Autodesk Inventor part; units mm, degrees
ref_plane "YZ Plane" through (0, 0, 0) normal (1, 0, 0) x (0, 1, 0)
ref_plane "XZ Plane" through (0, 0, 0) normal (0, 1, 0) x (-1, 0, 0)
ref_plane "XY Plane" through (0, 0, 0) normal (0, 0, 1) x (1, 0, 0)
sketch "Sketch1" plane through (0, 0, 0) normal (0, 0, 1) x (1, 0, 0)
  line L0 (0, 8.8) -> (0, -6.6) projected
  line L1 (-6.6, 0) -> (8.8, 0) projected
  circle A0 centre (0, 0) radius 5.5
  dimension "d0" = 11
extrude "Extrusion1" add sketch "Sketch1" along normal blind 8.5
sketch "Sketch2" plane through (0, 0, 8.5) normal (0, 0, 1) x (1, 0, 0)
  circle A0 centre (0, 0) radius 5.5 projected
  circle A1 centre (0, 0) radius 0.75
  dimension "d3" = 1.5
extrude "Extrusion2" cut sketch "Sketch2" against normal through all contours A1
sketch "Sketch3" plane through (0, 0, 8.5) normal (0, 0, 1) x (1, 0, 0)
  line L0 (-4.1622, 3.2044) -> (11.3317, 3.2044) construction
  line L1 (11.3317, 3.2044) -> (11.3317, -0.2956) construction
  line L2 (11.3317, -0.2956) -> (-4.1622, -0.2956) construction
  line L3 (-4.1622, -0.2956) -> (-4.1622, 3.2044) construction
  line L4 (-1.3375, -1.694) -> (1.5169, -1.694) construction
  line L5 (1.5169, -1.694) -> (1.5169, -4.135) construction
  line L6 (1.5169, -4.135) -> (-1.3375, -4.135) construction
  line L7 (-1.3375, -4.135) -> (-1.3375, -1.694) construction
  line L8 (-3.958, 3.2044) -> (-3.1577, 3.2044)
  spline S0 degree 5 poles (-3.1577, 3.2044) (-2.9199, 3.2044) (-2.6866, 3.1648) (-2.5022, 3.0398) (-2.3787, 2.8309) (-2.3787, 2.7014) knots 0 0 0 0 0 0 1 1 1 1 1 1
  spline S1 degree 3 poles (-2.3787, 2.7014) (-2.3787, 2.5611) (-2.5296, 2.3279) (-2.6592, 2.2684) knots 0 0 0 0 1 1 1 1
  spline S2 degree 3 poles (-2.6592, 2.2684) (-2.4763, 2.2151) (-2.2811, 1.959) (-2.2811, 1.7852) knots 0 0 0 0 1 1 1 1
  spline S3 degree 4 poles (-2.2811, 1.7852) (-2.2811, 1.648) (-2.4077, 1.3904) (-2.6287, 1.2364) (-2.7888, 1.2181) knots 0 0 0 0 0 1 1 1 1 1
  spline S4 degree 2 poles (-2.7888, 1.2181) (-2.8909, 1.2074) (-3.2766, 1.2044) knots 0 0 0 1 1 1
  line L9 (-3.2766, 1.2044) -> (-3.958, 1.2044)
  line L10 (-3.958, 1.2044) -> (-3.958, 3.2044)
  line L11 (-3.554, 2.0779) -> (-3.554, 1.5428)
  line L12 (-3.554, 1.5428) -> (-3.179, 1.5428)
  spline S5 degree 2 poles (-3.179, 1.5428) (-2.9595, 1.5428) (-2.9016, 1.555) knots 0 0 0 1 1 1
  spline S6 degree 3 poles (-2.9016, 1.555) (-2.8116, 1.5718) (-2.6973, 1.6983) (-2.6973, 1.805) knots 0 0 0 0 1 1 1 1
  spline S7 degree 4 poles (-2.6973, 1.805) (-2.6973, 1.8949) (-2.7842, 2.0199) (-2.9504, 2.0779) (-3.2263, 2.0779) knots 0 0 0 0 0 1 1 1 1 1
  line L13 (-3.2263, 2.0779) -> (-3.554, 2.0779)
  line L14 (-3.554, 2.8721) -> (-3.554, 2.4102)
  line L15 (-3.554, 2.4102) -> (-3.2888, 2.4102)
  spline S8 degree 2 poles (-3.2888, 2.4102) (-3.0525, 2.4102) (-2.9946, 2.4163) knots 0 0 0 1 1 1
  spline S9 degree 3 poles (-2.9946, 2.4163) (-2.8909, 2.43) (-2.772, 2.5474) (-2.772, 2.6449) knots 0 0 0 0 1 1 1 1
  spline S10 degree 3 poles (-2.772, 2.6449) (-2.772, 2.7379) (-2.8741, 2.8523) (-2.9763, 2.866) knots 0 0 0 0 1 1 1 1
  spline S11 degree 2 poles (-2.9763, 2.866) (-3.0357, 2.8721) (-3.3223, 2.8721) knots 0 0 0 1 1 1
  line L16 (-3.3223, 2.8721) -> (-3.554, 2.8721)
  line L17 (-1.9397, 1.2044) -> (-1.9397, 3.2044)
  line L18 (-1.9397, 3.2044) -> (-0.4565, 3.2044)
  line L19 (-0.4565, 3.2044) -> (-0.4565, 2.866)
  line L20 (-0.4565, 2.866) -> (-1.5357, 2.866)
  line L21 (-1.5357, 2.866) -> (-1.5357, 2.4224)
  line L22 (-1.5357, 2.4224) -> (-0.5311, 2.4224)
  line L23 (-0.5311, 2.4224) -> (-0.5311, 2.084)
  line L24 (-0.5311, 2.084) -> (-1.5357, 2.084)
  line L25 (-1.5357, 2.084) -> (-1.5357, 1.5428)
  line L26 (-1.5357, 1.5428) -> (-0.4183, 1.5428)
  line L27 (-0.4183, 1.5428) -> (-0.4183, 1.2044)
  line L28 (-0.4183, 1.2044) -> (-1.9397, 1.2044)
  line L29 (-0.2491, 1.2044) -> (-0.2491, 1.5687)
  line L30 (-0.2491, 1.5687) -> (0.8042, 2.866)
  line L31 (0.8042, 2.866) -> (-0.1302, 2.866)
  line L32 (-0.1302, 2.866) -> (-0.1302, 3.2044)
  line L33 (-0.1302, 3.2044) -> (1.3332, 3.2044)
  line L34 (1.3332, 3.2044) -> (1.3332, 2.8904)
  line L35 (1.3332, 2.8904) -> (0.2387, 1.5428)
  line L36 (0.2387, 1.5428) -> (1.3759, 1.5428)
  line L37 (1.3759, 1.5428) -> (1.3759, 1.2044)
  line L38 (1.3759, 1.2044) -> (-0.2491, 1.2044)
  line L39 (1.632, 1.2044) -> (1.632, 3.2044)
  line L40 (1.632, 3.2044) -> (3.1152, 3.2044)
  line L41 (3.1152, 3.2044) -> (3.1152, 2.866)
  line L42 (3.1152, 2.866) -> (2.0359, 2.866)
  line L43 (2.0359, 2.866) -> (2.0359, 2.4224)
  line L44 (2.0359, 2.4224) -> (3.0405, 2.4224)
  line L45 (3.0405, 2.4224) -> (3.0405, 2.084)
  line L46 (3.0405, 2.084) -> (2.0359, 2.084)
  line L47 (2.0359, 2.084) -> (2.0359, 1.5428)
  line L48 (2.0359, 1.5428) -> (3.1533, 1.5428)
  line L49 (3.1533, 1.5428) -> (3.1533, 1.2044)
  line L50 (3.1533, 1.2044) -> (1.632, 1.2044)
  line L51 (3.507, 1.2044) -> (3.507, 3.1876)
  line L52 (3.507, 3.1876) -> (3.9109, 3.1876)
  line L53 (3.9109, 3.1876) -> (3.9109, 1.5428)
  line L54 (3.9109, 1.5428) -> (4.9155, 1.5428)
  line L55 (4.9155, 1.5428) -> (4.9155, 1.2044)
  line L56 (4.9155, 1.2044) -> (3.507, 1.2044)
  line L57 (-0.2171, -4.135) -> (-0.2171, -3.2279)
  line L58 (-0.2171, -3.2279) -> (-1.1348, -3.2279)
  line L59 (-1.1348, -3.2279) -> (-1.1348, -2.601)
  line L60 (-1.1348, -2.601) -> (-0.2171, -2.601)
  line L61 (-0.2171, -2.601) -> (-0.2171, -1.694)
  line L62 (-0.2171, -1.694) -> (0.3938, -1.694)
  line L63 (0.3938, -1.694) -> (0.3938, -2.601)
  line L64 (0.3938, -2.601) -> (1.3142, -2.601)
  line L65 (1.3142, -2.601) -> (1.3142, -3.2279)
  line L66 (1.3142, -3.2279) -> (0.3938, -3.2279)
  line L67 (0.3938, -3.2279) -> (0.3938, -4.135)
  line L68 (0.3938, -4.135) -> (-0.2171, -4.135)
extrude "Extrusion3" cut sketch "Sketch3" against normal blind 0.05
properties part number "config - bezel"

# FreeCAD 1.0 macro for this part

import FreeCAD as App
import Part
import Sketcher

V = App.Vector

doc = App.newDocument("Part")
body = doc.addObject("PartDesign::Body", "Body")

# Sketch on XY plane
sketch1 = body.newObject("Sketcher::SketchObject", "Sketch")
sketch1.AttachmentSupport = (doc.getObject("XY_Plane"), [""])
sketch1.MapMode = "FlatFace"
sketch1.addGeometry(Part.Circle(V(0, 0, 0), V(0, 0, 1), 6), False)
sketch1.addConstraint([
    Sketcher.Constraint("Coincident", 0, 3, -1, 1),
    Sketcher.Constraint("Diameter", 0, 11.0),
])
pad1 = body.newObject("PartDesign::Pad", "Pad")
pad1.Profile = sketch1
pad1.Length = 8.5

# Sketch on XY plane
sketch2 = body.newObject("Sketcher::SketchObject", "Sketch001")
sketch2.AttachmentSupport = (doc.getObject("XY_Plane"), [""])
sketch2.MapMode = "FlatFace"
sketch2.AttachmentOffset = App.Placement(V(0, 0, 8.5), App.Rotation())
sketch2.addGeometry(Part.Circle(V(0, 0, 0), V(0, 0, 1), 0.8), False)
sketch2.addConstraint([
    Sketcher.Constraint("Coincident", 0, 3, -1, 1),
    Sketcher.Constraint("Diameter", 0, 1.5),
])
pocket1 = body.newObject("PartDesign::Pocket", "Pocket")
pocket1.Profile = sketch2
pocket1.Type = "ThroughAll"

# Sketch on XY plane
sketch3 = body.newObject("Sketcher::SketchObject", "Sketch002")
sketch3.AttachmentSupport = (doc.getObject("XY_Plane"), [""])
sketch3.MapMode = "FlatFace"
sketch3.AttachmentOffset = App.Placement(V(0, 0, 8.5), App.Rotation())
sketch3.addGeometry([
    Part.LineSegment(V(-3.1577, 3.2044, 0), V(-3.958, 3.2044, 0)),  # 0
    Part.LineSegment(V(-3.958, 3.2044, 0), V(-3.958, 1.2044, 0)),  # 1
    Part.LineSegment(V(-3.958, 1.2044, 0), V(-3.2766, 1.2044, 0)),  # 2
    Part.BSplineCurve([V(-2.7888, 1.2181, 0), V(-2.8909, 1.2074, 0), V(-3.2766, 1.2044, 0)], [3, 3], [0, 1], False, 2, [1, 1, 1], False),  # 3
    Part.BSplineCurve([V(-2.2811, 1.7852, 0), V(-2.2811, 1.648, 0), V(-2.4077, 1.3904, 0), V(-2.6287, 1.2364, 0), V(-2.7888, 1.2181, 0)], [5, 5], [0, 1], False, 4, [1, 1, 1, 1, 1], False),  # 4
    Part.BSplineCurve([V(-2.6592, 2.2684, 0), V(-2.4763, 2.2151, 0), V(-2.2811, 1.959, 0), V(-2.2811, 1.7852, 0)], [4, 4], [0, 1], False, 3, [1, 1, 1, 1], False),  # 5
    Part.BSplineCurve([V(-2.3787, 2.7014, 0), V(-2.3787, 2.5611, 0), V(-2.5296, 2.3279, 0), V(-2.6592, 2.2684, 0)], [4, 4], [0, 1], False, 3, [1, 1, 1, 1], False),  # 6
    Part.BSplineCurve([V(-3.1577, 3.2044, 0), V(-2.9199, 3.2044, 0), V(-2.6866, 3.1648, 0), V(-2.5022, 3.0398, 0), V(-2.3787, 2.8309, 0), V(-2.3787, 2.7014, 0)], [6, 6], [0, 1], False, 5, [1, 1, 1, 1, 1, 1], False),  # 7
    Part.LineSegment(V(-3.554, 1.5428, 0), V(-3.554, 2.0779, 0)),  # 8
    Part.LineSegment(V(-3.554, 2.0779, 0), V(-3.2263, 2.0779, 0)),  # 9
    Part.BSplineCurve([V(-2.6973, 1.805, 0), V(-2.6973, 1.8949, 0), V(-2.7842, 2.0199, 0), V(-2.9504, 2.0779, 0), V(-3.2263, 2.0779, 0)], [5, 5], [0, 1], False, 4, [1, 1, 1, 1, 1], False),  # 10
    Part.BSplineCurve([V(-2.9016, 1.555, 0), V(-2.8116, 1.5718, 0), V(-2.6973, 1.6983, 0), V(-2.6973, 1.805, 0)], [4, 4], [0, 1], False, 3, [1, 1, 1, 1], False),  # 11
    Part.BSplineCurve([V(-3.179, 1.5428, 0), V(-2.9595, 1.5428, 0), V(-2.9016, 1.555, 0)], [3, 3], [0, 1], False, 2, [1, 1, 1], False),  # 12
    Part.LineSegment(V(-3.179, 1.5428, 0), V(-3.554, 1.5428, 0)),  # 13
    Part.LineSegment(V(-3.554, 2.4102, 0), V(-3.554, 2.8721, 0)),  # 14
    Part.LineSegment(V(-3.554, 2.8721, 0), V(-3.3223, 2.8721, 0)),  # 15
    Part.BSplineCurve([V(-2.9763, 2.866, 0), V(-3.0357, 2.8721, 0), V(-3.3223, 2.8721, 0)], [3, 3], [0, 1], False, 2, [1, 1, 1], False),  # 16
    Part.BSplineCurve([V(-2.772, 2.6449, 0), V(-2.772, 2.7379, 0), V(-2.8741, 2.8523, 0), V(-2.9763, 2.866, 0)], [4, 4], [0, 1], False, 3, [1, 1, 1, 1], False),  # 17
    Part.BSplineCurve([V(-2.9946, 2.4163, 0), V(-2.8909, 2.43, 0), V(-2.772, 2.5474, 0), V(-2.772, 2.6449, 0)], [4, 4], [0, 1], False, 3, [1, 1, 1, 1], False),  # 18
    Part.BSplineCurve([V(-3.2888, 2.4102, 0), V(-3.0525, 2.4102, 0), V(-2.9946, 2.4163, 0)], [3, 3], [0, 1], False, 2, [1, 1, 1], False),  # 19
    Part.LineSegment(V(-3.2888, 2.4102, 0), V(-3.554, 2.4102, 0)),  # 20
    Part.LineSegment(V(-1.9397, 3.2044, 0), V(-1.9397, 1.2044, 0)),  # 21
    Part.LineSegment(V(-1.9397, 1.2044, 0), V(-0.4183, 1.2044, 0)),  # 22
    Part.LineSegment(V(-0.4183, 1.2044, 0), V(-0.4183, 1.5428, 0)),  # 23
    Part.LineSegment(V(-0.4183, 1.5428, 0), V(-1.5357, 1.5428, 0)),  # 24
    Part.LineSegment(V(-1.5357, 1.5428, 0), V(-1.5357, 2.084, 0)),  # 25
    Part.LineSegment(V(-1.5357, 2.084, 0), V(-0.5311, 2.084, 0)),  # 26
    Part.LineSegment(V(-0.5311, 2.084, 0), V(-0.5311, 2.4224, 0)),  # 27
    Part.LineSegment(V(-0.5311, 2.4224, 0), V(-1.5357, 2.4224, 0)),  # 28
    Part.LineSegment(V(-1.5357, 2.4224, 0), V(-1.5357, 2.866, 0)),  # 29
    Part.LineSegment(V(-1.5357, 2.866, 0), V(-0.4565, 2.866, 0)),  # 30
    Part.LineSegment(V(-0.4565, 2.866, 0), V(-0.4565, 3.2044, 0)),  # 31
    Part.LineSegment(V(-0.4565, 3.2044, 0), V(-1.9397, 3.2044, 0)),  # 32
    Part.LineSegment(V(-0.2491, 1.5687, 0), V(-0.2491, 1.2044, 0)),  # 33
    Part.LineSegment(V(-0.2491, 1.2044, 0), V(1.3759, 1.2044, 0)),  # 34
    Part.LineSegment(V(1.3759, 1.2044, 0), V(1.3759, 1.5428, 0)),  # 35
    Part.LineSegment(V(1.3759, 1.5428, 0), V(0.2387, 1.5428, 0)),  # 36
    Part.LineSegment(V(0.2387, 1.5428, 0), V(1.3332, 2.8904, 0)),  # 37
    Part.LineSegment(V(1.3332, 2.8904, 0), V(1.3332, 3.2044, 0)),  # 38
    Part.LineSegment(V(1.3332, 3.2044, 0), V(-0.1302, 3.2044, 0)),  # 39
    Part.LineSegment(V(-0.1302, 3.2044, 0), V(-0.1302, 2.866, 0)),  # 40
    Part.LineSegment(V(-0.1302, 2.866, 0), V(0.8042, 2.866, 0)),  # 41
    Part.LineSegment(V(0.8042, 2.866, 0), V(-0.2491, 1.5687, 0)),  # 42
    Part.LineSegment(V(1.632, 3.2044, 0), V(1.632, 1.2044, 0)),  # 43
    Part.LineSegment(V(1.632, 1.2044, 0), V(3.1533, 1.2044, 0)),  # 44
    Part.LineSegment(V(3.1533, 1.2044, 0), V(3.1533, 1.5428, 0)),  # 45
    Part.LineSegment(V(3.1533, 1.5428, 0), V(2.0359, 1.5428, 0)),  # 46
    Part.LineSegment(V(2.0359, 1.5428, 0), V(2.0359, 2.084, 0)),  # 47
    Part.LineSegment(V(2.0359, 2.084, 0), V(3.0405, 2.084, 0)),  # 48
    Part.LineSegment(V(3.0405, 2.084, 0), V(3.0405, 2.4224, 0)),  # 49
    Part.LineSegment(V(3.0405, 2.4224, 0), V(2.0359, 2.4224, 0)),  # 50
    Part.LineSegment(V(2.0359, 2.4224, 0), V(2.0359, 2.866, 0)),  # 51
    Part.LineSegment(V(2.0359, 2.866, 0), V(3.1152, 2.866, 0)),  # 52
    Part.LineSegment(V(3.1152, 2.866, 0), V(3.1152, 3.2044, 0)),  # 53
    Part.LineSegment(V(3.1152, 3.2044, 0), V(1.632, 3.2044, 0)),  # 54
    Part.LineSegment(V(3.507, 3.1876, 0), V(3.507, 1.2044, 0)),  # 55
    Part.LineSegment(V(3.507, 1.2044, 0), V(4.9155, 1.2044, 0)),  # 56
    Part.LineSegment(V(4.9155, 1.2044, 0), V(4.9155, 1.5428, 0)),  # 57
    Part.LineSegment(V(4.9155, 1.5428, 0), V(3.9109, 1.5428, 0)),  # 58
    Part.LineSegment(V(3.9109, 1.5428, 0), V(3.9109, 3.1876, 0)),  # 59
    Part.LineSegment(V(3.9109, 3.1876, 0), V(3.507, 3.1876, 0)),  # 60
    Part.LineSegment(V(-0.2171, -3.2279, 0), V(-0.2171, -4.135, 0)),  # 61
    Part.LineSegment(V(-0.2171, -4.135, 0), V(0.3938, -4.135, 0)),  # 62
    Part.LineSegment(V(0.3938, -4.135, 0), V(0.3938, -3.2279, 0)),  # 63
    Part.LineSegment(V(0.3938, -3.2279, 0), V(1.3142, -3.2279, 0)),  # 64
    Part.LineSegment(V(1.3142, -3.2279, 0), V(1.3142, -2.601, 0)),  # 65
    Part.LineSegment(V(1.3142, -2.601, 0), V(0.3938, -2.601, 0)),  # 66
    Part.LineSegment(V(0.3938, -2.601, 0), V(0.3938, -1.694, 0)),  # 67
    Part.LineSegment(V(0.3938, -1.694, 0), V(-0.2171, -1.694, 0)),  # 68
    Part.LineSegment(V(-0.2171, -1.694, 0), V(-0.2171, -2.601, 0)),  # 69
    Part.LineSegment(V(-0.2171, -2.601, 0), V(-1.1348, -2.601, 0)),  # 70
    Part.LineSegment(V(-1.1348, -2.601, 0), V(-1.1348, -3.2279, 0)),  # 71
    Part.LineSegment(V(-1.1348, -3.2279, 0), V(-0.2171, -3.2279, 0)),  # 72
], False)
sketch3.addConstraint([
    Sketcher.Constraint("Block", 3),
    Sketcher.Constraint("Block", 4),
    Sketcher.Constraint("Block", 5),
    Sketcher.Constraint("Block", 6),
    Sketcher.Constraint("Block", 7),
    Sketcher.Constraint("Block", 10),
    Sketcher.Constraint("Block", 11),
    Sketcher.Constraint("Block", 12),
    Sketcher.Constraint("Block", 16),
    Sketcher.Constraint("Block", 17),
    Sketcher.Constraint("Block", 18),
    Sketcher.Constraint("Block", 19),
    Sketcher.Constraint("Coincident", 0, 2, 1, 1),
    Sketcher.Constraint("Coincident", 1, 2, 2, 1),
    Sketcher.Constraint("Coincident", 2, 2, 3, 2),
    Sketcher.Constraint("Coincident", 7, 1, 0, 1),
    Sketcher.Constraint("Coincident", 8, 2, 9, 1),
    Sketcher.Constraint("Coincident", 9, 2, 10, 2),
    Sketcher.Constraint("Coincident", 12, 1, 13, 1),
    Sketcher.Constraint("Coincident", 13, 2, 8, 1),
    Sketcher.Constraint("Coincident", 14, 2, 15, 1),
    Sketcher.Constraint("Coincident", 15, 2, 16, 2),
    Sketcher.Constraint("Coincident", 19, 1, 20, 1),
    Sketcher.Constraint("Coincident", 20, 2, 14, 1),
    Sketcher.Constraint("Coincident", 21, 2, 22, 1),
    Sketcher.Constraint("Coincident", 22, 2, 23, 1),
    Sketcher.Constraint("Coincident", 23, 2, 24, 1),
    Sketcher.Constraint("Coincident", 24, 2, 25, 1),
    Sketcher.Constraint("Coincident", 25, 2, 26, 1),
    Sketcher.Constraint("Coincident", 26, 2, 27, 1),
    Sketcher.Constraint("Coincident", 27, 2, 28, 1),
    Sketcher.Constraint("Coincident", 28, 2, 29, 1),
    Sketcher.Constraint("Coincident", 29, 2, 30, 1),
    Sketcher.Constraint("Coincident", 30, 2, 31, 1),
    Sketcher.Constraint("Coincident", 31, 2, 32, 1),
    Sketcher.Constraint("Coincident", 32, 2, 21, 1),
    Sketcher.Constraint("Coincident", 33, 2, 34, 1),
    Sketcher.Constraint("Coincident", 34, 2, 35, 1),
    Sketcher.Constraint("Coincident", 35, 2, 36, 1),
    Sketcher.Constraint("Coincident", 36, 2, 37, 1),
    Sketcher.Constraint("Coincident", 37, 2, 38, 1),
    Sketcher.Constraint("Coincident", 38, 2, 39, 1),
    Sketcher.Constraint("Coincident", 39, 2, 40, 1),
    Sketcher.Constraint("Coincident", 40, 2, 41, 1),
    Sketcher.Constraint("Coincident", 41, 2, 42, 1),
    Sketcher.Constraint("Coincident", 42, 2, 33, 1),
    Sketcher.Constraint("Coincident", 43, 2, 44, 1),
    Sketcher.Constraint("Coincident", 44, 2, 45, 1),
    Sketcher.Constraint("Coincident", 45, 2, 46, 1),
    Sketcher.Constraint("Coincident", 46, 2, 47, 1),
    Sketcher.Constraint("Coincident", 47, 2, 48, 1),
    Sketcher.Constraint("Coincident", 48, 2, 49, 1),
    Sketcher.Constraint("Coincident", 49, 2, 50, 1),
    Sketcher.Constraint("Coincident", 50, 2, 51, 1),
    Sketcher.Constraint("Coincident", 51, 2, 52, 1),
    Sketcher.Constraint("Coincident", 52, 2, 53, 1),
    Sketcher.Constraint("Coincident", 53, 2, 54, 1),
    Sketcher.Constraint("Coincident", 54, 2, 43, 1),
    Sketcher.Constraint("Coincident", 55, 2, 56, 1),
    Sketcher.Constraint("Coincident", 56, 2, 57, 1),
    Sketcher.Constraint("Coincident", 57, 2, 58, 1),
    Sketcher.Constraint("Coincident", 58, 2, 59, 1),
    Sketcher.Constraint("Coincident", 59, 2, 60, 1),
    Sketcher.Constraint("Coincident", 60, 2, 55, 1),
    Sketcher.Constraint("Coincident", 61, 2, 62, 1),
    Sketcher.Constraint("Coincident", 62, 2, 63, 1),
    Sketcher.Constraint("Coincident", 63, 2, 64, 1),
    Sketcher.Constraint("Coincident", 64, 2, 65, 1),
    Sketcher.Constraint("Coincident", 65, 2, 66, 1),
    Sketcher.Constraint("Coincident", 66, 2, 67, 1),
    Sketcher.Constraint("Coincident", 67, 2, 68, 1),
    Sketcher.Constraint("Coincident", 68, 2, 69, 1),
    Sketcher.Constraint("Coincident", 69, 2, 70, 1),
    Sketcher.Constraint("Coincident", 70, 2, 71, 1),
    Sketcher.Constraint("Coincident", 71, 2, 72, 1),
    Sketcher.Constraint("Coincident", 72, 2, 61, 1),
    Sketcher.Constraint("Horizontal", 0),
    Sketcher.Constraint("Vertical", 1),
    Sketcher.Constraint("Horizontal", 2),
    Sketcher.Constraint("Vertical", 8),
    Sketcher.Constraint("Horizontal", 9),
    Sketcher.Constraint("Horizontal", 13),
    Sketcher.Constraint("Vertical", 14),
    Sketcher.Constraint("Horizontal", 15),
    Sketcher.Constraint("Horizontal", 20),
    Sketcher.Constraint("Vertical", 21),
    Sketcher.Constraint("Horizontal", 22),
    Sketcher.Constraint("Vertical", 23),
    Sketcher.Constraint("Horizontal", 24),
    Sketcher.Constraint("Vertical", 25),
    Sketcher.Constraint("Horizontal", 26),
    Sketcher.Constraint("Vertical", 27),
    Sketcher.Constraint("Horizontal", 28),
    Sketcher.Constraint("Vertical", 29),
    Sketcher.Constraint("Horizontal", 30),
    Sketcher.Constraint("Vertical", 31),
    Sketcher.Constraint("Horizontal", 32),
    Sketcher.Constraint("Vertical", 33),
    Sketcher.Constraint("Horizontal", 34),
    Sketcher.Constraint("Vertical", 35),
    Sketcher.Constraint("Horizontal", 36),
    Sketcher.Constraint("Vertical", 38),
    Sketcher.Constraint("Horizontal", 39),
    Sketcher.Constraint("Vertical", 40),
    Sketcher.Constraint("Horizontal", 41),
    Sketcher.Constraint("Vertical", 43),
    Sketcher.Constraint("Horizontal", 44),
    Sketcher.Constraint("Vertical", 45),
    Sketcher.Constraint("Horizontal", 46),
    Sketcher.Constraint("Vertical", 47),
    Sketcher.Constraint("Horizontal", 48),
    Sketcher.Constraint("Vertical", 49),
    Sketcher.Constraint("Horizontal", 50),
    Sketcher.Constraint("Vertical", 51),
    Sketcher.Constraint("Horizontal", 52),
    Sketcher.Constraint("Vertical", 53),
    Sketcher.Constraint("Horizontal", 54),
    Sketcher.Constraint("Vertical", 55),
    Sketcher.Constraint("Horizontal", 56),
    Sketcher.Constraint("Vertical", 57),
    Sketcher.Constraint("Horizontal", 58),
    Sketcher.Constraint("Vertical", 59),
    Sketcher.Constraint("Horizontal", 60),
    Sketcher.Constraint("Vertical", 61),
    Sketcher.Constraint("Horizontal", 62),
    Sketcher.Constraint("Vertical", 63),
    Sketcher.Constraint("Horizontal", 64),
    Sketcher.Constraint("Vertical", 65),
    Sketcher.Constraint("Horizontal", 66),
    Sketcher.Constraint("Vertical", 67),
    Sketcher.Constraint("Horizontal", 68),
    Sketcher.Constraint("Vertical", 69),
    Sketcher.Constraint("Horizontal", 70),
    Sketcher.Constraint("Vertical", 71),
    Sketcher.Constraint("Horizontal", 72),
    Sketcher.Constraint("DistanceY", 21, 2, 21, 1, 2.0),
    Sketcher.Constraint("DistanceY", 43, 2, 43, 1, 2.0),
    Sketcher.Constraint("DistanceX", 13, 2, 13, 1, 0.375),
    Sketcher.Constraint("DistanceX", 34, 1, 34, 2, 1.625),
    Sketcher.Constraint("DistanceX", 60, 2, 60, 1, 0.404),
    Sketcher.Constraint("DistanceX", 62, 1, 62, 2, 0.611),
    Sketcher.Constraint("DistanceX", 68, 2, 68, 1, 0.611),
    Sketcher.Constraint("DistanceY", 38, 1, 38, 2, 0.314),
    Sketcher.Constraint("DistanceY", 61, 2, 61, 1, 0.907),
    Sketcher.Constraint("DistanceY", 63, 1, 63, 2, 0.907),
    Sketcher.Constraint("DistanceY", 65, 1, 65, 2, 0.627),
    Sketcher.Constraint("DistanceY", 67, 1, 67, 2, 0.907),
    Sketcher.Constraint("DistanceY", 69, 2, 69, 1, 0.907),
    Sketcher.Constraint("Distance", 37, 1.736),
    Sketcher.Constraint("Distance", 42, 1.671),
    Sketcher.Constraint("DistanceX", 0, 2, 0, 1, 0.8003),
    Sketcher.Constraint("DistanceX", 15, 1, 15, 2, 0.2317),
    Sketcher.Constraint("DistanceX", 22, 1, 22, 2, 1.5214),
    Sketcher.Constraint("DistanceX", 24, 2, 24, 1, 1.1174),
    Sketcher.Constraint("DistanceX", 26, 1, 26, 2, 1.0046),
    Sketcher.Constraint("DistanceX", 28, 2, 28, 1, 1.0046),
    Sketcher.Constraint("DistanceX", 30, 1, 30, 2, 1.0792),
    Sketcher.Constraint("DistanceX", 36, 2, 36, 1, 1.1372),
    Sketcher.Constraint("DistanceX", 39, 2, 39, 1, 1.4634),
    Sketcher.Constraint("DistanceX", 41, 1, 41, 2, 0.9344),
    Sketcher.Constraint("DistanceX", 44, 1, 44, 2, 1.5213),
    Sketcher.Constraint("DistanceX", 46, 2, 46, 1, 1.1174),
    Sketcher.Constraint("DistanceX", 48, 1, 48, 2, 1.0046),
    Sketcher.Constraint("DistanceX", 50, 2, 50, 1, 1.0046),
    Sketcher.Constraint("DistanceX", 52, 1, 52, 2, 1.0793),
    Sketcher.Constraint("DistanceX", 56, 1, 56, 2, 1.4085),
    Sketcher.Constraint("DistanceX", 64, 1, 64, 2, 0.9204),
    Sketcher.Constraint("DistanceX", 66, 2, 66, 1, 0.9204),
    Sketcher.Constraint("DistanceX", 70, 2, 70, 1, 0.9177),
    Sketcher.Constraint("DistanceY", 23, 1, 23, 2, 0.3384),
    Sketcher.Constraint("DistanceY", 25, 1, 25, 2, 0.5412),
    Sketcher.Constraint("DistanceY", 27, 1, 27, 2, 0.3384),
    Sketcher.Constraint("DistanceY", 29, 1, 29, 2, 0.4436),
    Sketcher.Constraint("DistanceY", 33, 2, 33, 1, 0.3643),
    Sketcher.Constraint("DistanceY", 35, 1, 35, 2, 0.3384),
    Sketcher.Constraint("DistanceY", 45, 1, 45, 2, 0.3384),
    Sketcher.Constraint("DistanceY", 47, 1, 47, 2, 0.5412),
    Sketcher.Constraint("DistanceY", 49, 1, 49, 2, 0.3384),
    Sketcher.Constraint("DistanceY", 51, 1, 51, 2, 0.4436),
    Sketcher.Constraint("DistanceY", 55, 2, 55, 1, 1.9832),
    Sketcher.Constraint("DistanceY", 57, 1, 57, 2, 0.3384),
    Sketcher.Constraint("DistanceY", -1, 1, 25, 2, 2.084),
    Sketcher.Constraint("DistanceX", 26, 2, -1, 1, 0.531),
    Sketcher.Constraint("DistanceX", 33, 2, -1, 1, 0.249),
    Sketcher.Constraint("DistanceY", -1, 1, 40, 2, 2.866),
    Sketcher.Constraint("DistanceX", -1, 1, 43, 2, 1.632),
    Sketcher.Constraint("DistanceY", -1, 1, 47, 2, 2.084),
    Sketcher.Constraint("DistanceX", -1, 1, 55, 2, 3.507),
    Sketcher.Constraint("DistanceX", 61, 2, -1, 1, 0.217),
    Sketcher.Constraint("DistanceY", 61, 2, -1, 1, 4.135),
    Sketcher.Constraint("DistanceY", -1, 1, 33, 2, 1.2044),
    Sketcher.Constraint("DistanceY", -1, 1, 55, 2, 1.2044),
])
pocket2 = body.newObject("PartDesign::Pocket", "Pocket001")
pocket2.Profile = sketch3
pocket2.Length = 0.05

doc.recompute()
